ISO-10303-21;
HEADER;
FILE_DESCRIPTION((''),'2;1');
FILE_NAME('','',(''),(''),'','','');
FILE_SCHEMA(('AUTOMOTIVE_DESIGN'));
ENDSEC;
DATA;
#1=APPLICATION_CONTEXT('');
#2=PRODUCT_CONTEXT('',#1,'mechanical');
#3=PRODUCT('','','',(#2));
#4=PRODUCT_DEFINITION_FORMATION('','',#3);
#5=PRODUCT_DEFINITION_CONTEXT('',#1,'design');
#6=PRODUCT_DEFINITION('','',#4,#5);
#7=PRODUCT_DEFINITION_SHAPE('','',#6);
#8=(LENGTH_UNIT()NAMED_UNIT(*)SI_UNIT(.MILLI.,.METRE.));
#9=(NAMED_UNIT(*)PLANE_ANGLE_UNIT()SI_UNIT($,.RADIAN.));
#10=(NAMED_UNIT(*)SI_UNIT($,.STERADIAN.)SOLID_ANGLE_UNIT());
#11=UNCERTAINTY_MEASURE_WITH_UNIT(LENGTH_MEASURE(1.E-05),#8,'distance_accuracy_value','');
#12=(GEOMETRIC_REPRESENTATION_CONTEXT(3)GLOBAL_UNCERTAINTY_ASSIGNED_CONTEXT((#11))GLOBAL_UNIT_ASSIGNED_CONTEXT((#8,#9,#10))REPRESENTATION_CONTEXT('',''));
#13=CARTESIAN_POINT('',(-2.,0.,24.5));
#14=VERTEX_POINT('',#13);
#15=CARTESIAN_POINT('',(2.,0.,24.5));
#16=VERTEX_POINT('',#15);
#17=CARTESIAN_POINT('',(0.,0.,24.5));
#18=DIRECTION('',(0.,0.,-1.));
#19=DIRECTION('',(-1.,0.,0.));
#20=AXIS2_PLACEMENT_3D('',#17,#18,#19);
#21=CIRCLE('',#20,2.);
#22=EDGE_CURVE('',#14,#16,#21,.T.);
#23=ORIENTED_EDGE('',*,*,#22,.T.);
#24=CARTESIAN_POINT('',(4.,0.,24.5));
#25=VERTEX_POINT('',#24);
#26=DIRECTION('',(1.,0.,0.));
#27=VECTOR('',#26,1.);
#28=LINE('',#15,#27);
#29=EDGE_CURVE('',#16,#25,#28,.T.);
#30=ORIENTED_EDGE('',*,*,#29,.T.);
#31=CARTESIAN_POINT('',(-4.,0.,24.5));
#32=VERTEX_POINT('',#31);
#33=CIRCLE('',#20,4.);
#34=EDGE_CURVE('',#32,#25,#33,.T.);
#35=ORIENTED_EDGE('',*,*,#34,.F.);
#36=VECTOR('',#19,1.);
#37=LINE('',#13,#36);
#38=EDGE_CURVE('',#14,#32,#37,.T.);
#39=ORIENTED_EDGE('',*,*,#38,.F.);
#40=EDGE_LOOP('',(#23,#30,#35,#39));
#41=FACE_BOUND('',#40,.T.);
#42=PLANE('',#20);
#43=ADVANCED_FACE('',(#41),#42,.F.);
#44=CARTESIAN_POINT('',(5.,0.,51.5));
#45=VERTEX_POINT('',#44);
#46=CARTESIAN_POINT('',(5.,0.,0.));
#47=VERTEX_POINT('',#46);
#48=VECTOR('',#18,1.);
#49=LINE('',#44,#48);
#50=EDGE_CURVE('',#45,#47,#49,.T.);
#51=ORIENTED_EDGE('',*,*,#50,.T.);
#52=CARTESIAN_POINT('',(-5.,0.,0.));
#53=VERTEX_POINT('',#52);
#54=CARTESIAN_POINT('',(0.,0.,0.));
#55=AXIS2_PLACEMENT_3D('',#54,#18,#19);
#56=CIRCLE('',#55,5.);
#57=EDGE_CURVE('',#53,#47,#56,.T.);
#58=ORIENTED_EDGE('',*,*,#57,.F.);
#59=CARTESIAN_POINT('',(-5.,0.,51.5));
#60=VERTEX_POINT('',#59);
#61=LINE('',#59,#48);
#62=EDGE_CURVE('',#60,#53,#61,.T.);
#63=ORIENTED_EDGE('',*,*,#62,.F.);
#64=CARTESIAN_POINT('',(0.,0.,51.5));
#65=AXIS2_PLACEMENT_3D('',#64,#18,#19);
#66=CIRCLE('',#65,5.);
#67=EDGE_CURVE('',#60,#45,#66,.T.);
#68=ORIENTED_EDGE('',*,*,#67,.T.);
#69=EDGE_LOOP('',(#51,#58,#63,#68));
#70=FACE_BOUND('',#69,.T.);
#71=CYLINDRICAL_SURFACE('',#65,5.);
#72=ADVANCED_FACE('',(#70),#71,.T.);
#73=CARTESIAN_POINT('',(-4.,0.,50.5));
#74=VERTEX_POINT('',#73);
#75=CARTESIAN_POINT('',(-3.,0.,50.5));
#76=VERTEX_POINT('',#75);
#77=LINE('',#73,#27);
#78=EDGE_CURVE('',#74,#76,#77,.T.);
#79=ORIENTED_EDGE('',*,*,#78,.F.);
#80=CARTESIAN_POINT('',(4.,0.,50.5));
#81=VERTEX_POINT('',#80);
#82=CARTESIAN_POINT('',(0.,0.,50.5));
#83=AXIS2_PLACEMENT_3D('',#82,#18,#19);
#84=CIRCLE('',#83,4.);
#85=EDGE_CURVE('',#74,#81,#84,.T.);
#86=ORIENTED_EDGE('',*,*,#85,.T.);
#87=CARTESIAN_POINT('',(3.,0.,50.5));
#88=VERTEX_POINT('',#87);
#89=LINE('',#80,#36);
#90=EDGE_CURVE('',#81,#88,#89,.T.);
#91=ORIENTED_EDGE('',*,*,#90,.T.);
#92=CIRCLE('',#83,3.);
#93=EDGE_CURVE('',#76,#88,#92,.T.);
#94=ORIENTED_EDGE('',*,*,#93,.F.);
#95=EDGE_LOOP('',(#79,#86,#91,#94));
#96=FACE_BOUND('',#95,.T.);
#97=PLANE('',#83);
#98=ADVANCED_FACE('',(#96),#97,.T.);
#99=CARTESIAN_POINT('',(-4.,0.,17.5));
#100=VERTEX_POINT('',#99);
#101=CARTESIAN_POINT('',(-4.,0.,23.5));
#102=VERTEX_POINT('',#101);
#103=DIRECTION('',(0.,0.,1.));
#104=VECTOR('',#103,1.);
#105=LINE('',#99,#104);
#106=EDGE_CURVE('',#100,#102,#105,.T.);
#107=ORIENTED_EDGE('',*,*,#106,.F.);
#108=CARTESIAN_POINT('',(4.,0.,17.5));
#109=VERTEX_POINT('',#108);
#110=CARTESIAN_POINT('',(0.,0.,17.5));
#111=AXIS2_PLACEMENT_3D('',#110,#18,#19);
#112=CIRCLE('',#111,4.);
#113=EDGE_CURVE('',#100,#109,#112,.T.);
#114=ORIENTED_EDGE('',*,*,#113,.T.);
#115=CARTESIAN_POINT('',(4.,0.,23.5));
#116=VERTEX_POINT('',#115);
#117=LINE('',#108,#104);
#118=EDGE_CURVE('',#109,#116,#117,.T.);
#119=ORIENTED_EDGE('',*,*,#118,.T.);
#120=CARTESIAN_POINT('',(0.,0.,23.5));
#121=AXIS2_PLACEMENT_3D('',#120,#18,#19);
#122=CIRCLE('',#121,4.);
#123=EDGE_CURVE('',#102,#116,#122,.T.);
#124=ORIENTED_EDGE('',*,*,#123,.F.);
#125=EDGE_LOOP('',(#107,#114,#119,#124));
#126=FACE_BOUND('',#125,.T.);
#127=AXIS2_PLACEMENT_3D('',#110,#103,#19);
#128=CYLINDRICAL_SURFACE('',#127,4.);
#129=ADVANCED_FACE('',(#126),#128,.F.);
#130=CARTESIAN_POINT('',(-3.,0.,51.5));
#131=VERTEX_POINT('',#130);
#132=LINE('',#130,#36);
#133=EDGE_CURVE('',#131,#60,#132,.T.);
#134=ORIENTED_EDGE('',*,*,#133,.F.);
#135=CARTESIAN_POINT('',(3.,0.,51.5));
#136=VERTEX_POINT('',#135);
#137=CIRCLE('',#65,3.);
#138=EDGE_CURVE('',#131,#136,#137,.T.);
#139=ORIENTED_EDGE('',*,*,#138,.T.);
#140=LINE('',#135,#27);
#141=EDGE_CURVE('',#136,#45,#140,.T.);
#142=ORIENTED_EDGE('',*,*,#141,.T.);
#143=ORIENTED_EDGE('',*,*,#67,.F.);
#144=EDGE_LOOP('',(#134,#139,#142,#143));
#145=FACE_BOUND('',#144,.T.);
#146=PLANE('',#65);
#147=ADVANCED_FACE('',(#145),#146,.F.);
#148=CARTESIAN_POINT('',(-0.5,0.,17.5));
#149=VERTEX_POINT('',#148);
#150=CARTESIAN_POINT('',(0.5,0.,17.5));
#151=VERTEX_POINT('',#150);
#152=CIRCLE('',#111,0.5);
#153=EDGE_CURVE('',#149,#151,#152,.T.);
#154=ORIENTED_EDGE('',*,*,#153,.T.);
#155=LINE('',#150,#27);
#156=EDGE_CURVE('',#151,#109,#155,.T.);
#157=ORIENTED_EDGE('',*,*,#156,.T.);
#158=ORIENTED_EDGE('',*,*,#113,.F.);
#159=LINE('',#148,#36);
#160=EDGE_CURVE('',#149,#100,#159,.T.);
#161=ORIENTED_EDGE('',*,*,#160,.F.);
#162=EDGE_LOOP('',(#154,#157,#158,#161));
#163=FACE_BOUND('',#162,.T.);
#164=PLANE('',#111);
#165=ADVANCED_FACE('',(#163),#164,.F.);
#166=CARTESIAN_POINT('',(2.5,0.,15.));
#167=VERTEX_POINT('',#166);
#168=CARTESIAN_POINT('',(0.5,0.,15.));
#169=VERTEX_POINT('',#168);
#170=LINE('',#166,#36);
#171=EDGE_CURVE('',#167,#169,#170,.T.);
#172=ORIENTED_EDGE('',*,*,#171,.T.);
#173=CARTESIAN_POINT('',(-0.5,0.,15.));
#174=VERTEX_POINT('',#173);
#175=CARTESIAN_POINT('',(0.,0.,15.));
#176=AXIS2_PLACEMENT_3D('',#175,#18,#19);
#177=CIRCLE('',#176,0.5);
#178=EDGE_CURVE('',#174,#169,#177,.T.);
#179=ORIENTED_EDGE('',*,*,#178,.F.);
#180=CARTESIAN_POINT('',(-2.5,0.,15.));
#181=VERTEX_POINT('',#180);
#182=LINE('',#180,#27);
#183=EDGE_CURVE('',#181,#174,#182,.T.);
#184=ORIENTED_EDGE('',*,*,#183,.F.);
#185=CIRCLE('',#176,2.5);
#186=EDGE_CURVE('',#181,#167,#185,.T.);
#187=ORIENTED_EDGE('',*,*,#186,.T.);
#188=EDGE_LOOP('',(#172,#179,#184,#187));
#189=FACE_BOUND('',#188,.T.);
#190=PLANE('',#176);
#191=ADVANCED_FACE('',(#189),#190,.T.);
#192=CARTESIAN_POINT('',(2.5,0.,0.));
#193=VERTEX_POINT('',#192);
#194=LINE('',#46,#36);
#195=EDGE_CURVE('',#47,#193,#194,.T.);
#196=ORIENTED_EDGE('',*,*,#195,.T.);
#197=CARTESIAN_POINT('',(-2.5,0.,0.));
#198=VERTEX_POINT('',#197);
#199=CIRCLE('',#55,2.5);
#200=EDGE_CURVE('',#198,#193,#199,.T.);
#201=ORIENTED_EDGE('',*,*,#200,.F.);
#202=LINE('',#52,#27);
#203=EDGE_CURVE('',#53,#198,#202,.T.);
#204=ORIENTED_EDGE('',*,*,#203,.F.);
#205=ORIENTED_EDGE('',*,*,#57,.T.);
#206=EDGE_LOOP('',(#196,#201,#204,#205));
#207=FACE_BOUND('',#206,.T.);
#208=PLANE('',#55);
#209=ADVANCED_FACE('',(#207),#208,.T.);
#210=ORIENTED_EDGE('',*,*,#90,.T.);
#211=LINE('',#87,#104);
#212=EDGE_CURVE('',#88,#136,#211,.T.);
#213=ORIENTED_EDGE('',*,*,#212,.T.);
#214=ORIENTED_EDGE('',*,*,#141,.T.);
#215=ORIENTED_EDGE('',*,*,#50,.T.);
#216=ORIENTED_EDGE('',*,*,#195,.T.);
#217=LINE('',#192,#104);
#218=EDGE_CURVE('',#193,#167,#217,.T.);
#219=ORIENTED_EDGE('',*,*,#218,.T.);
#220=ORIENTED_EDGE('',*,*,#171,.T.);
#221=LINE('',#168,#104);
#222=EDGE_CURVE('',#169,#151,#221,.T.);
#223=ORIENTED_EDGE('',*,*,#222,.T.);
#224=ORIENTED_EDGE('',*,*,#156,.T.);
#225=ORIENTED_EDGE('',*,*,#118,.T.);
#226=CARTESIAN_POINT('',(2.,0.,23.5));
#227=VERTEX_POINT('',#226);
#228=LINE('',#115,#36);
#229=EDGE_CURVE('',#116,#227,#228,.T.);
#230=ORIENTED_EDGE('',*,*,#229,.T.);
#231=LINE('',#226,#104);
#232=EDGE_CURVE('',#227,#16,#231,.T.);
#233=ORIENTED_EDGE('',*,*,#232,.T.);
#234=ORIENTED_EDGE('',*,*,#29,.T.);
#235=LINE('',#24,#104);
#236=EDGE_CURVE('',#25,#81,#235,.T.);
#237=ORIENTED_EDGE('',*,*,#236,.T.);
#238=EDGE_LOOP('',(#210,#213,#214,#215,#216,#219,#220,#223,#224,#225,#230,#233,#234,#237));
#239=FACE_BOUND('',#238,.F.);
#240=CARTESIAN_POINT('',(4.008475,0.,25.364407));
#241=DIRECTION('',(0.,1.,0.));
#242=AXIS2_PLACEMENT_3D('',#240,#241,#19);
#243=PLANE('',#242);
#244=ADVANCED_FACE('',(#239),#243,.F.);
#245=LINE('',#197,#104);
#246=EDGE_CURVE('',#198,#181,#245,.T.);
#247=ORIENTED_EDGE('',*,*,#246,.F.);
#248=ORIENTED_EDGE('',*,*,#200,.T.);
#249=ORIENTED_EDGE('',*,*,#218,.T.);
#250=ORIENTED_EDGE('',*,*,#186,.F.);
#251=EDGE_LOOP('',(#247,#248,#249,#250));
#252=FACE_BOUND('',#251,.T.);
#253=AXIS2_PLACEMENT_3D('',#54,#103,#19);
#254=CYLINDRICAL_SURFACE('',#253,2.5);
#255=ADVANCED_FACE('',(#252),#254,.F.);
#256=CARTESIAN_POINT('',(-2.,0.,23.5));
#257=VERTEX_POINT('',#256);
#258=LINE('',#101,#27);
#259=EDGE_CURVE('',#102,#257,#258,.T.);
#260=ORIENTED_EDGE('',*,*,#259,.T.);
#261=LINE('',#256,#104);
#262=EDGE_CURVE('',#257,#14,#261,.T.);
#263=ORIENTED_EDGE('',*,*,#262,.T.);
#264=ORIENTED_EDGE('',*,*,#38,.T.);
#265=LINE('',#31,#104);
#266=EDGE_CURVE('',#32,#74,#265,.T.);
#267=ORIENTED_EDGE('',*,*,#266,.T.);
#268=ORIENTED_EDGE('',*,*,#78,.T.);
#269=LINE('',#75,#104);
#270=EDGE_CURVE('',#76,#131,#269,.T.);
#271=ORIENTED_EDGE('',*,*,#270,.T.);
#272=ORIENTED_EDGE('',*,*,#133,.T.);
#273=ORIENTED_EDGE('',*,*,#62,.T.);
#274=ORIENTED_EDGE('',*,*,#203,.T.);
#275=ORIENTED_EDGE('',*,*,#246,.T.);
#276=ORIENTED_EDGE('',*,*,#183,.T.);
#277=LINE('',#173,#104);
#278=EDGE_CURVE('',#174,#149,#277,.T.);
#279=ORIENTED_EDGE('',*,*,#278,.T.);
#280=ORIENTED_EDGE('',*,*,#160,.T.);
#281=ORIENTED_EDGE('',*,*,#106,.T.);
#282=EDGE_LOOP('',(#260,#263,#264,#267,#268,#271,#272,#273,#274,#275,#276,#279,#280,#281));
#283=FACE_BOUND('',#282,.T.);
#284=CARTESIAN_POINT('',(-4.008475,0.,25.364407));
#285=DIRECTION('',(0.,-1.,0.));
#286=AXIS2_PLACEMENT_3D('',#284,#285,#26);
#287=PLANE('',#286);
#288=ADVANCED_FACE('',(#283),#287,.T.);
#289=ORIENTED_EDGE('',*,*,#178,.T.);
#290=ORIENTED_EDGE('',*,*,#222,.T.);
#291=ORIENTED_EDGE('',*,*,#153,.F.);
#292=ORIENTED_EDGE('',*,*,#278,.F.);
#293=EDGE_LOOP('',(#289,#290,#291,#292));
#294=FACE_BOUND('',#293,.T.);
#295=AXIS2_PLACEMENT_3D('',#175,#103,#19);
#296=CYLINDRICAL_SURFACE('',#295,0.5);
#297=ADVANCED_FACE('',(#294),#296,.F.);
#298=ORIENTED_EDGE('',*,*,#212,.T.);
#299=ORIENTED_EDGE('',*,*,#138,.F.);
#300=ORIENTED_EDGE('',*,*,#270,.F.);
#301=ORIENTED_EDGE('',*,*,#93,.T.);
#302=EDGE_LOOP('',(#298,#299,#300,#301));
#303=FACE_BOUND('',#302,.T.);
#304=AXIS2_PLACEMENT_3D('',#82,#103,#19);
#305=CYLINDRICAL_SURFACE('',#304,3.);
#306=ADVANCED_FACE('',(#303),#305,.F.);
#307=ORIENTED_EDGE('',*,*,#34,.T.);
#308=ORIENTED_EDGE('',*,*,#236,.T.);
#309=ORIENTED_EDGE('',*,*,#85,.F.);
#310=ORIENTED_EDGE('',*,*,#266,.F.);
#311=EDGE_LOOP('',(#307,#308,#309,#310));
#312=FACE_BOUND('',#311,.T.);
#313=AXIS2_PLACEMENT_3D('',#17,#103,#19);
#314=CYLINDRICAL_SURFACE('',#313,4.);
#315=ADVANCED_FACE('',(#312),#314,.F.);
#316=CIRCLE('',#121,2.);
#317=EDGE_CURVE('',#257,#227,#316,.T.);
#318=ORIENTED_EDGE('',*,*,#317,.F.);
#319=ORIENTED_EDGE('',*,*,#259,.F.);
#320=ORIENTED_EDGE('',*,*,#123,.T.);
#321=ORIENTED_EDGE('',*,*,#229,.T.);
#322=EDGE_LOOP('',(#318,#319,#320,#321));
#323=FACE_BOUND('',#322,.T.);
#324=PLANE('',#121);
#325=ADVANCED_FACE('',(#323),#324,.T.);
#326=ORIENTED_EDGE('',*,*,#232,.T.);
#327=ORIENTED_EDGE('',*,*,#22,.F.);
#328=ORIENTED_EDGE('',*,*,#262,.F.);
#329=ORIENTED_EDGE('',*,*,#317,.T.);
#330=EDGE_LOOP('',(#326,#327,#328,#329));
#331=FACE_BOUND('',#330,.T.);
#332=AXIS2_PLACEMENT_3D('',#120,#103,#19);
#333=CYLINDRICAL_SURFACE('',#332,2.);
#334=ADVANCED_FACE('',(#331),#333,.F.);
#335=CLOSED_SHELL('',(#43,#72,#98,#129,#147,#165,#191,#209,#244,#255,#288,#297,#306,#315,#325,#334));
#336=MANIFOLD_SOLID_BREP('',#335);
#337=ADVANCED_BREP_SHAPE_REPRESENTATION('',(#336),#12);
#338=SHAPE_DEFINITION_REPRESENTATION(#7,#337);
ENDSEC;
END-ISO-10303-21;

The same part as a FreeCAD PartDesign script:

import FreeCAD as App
import Part
import Sketcher

V = App.Vector


def add_polygon(sketch, points):
    """Adds a closed chain of lines whose ends are joined by coincident constraints."""
    first, n = sketch.GeometryCount, len(points)
    for a, b in zip(points, points[1:] + points[:1]):
        sketch.addGeometry(Part.LineSegment(App.Vector(*a, 0), App.Vector(*b, 0)), False)
    for i in range(n):
        sketch.addConstraint(Sketcher.Constraint("Coincident", first + i, 2, first + (i + 1) % n, 1))

doc = App.newDocument("Part")
body = doc.addObject("PartDesign::Body", "Body")

# Sketch on XZ plane
sketch1 = body.newObject("Sketcher::SketchObject", "Sketch")
sketch1.AttachmentSupport = (doc.getObject("XZ_Plane"), [""])
sketch1.MapMode = "FlatFace"
add_polygon(sketch1, [(-4, 50.5), (-3, 50.5), (-3, 51.5), (-5, 51.5), (-5, 0), (-2.5, 0), (-2.5, 15), (-0.5, 15), (-0.5, 17.5), (-4, 17.5), (-4, 23.5), (-2, 23.5), (-2, 24.5), (-4, 24.5)])  # lines 0-13
sketch1.addConstraint([
    Sketcher.Constraint("Horizontal", 0),
    Sketcher.Constraint("Vertical", 1),
    Sketcher.Constraint("Horizontal", 2),
    Sketcher.Constraint("Vertical", 3),
    Sketcher.Constraint("Horizontal", 4),
    Sketcher.Constraint("Vertical", 5),
    Sketcher.Constraint("Horizontal", 6),
    Sketcher.Constraint("Vertical", 7),
    Sketcher.Constraint("Horizontal", 8),
    Sketcher.Constraint("Vertical", 9),
    Sketcher.Constraint("Horizontal", 10),
    Sketcher.Constraint("Vertical", 11),
    Sketcher.Constraint("Horizontal", 12),
    Sketcher.Constraint("Vertical", 13),
    Sketcher.Constraint("PointOnObject", 3, 2, -1),
    Sketcher.Constraint("Vertical", 9, 2, 12, 2),
    Sketcher.Constraint("Equal", 2, 6),
    Sketcher.Constraint("Equal", 6, 10),
    Sketcher.Constraint("Equal", 0, 1),
    Sketcher.Constraint("Equal", 4, 7),
    Sketcher.Constraint("Equal", 1, 11),
    Sketcher.Constraint("DistanceX", 0, 1, 0, 2, 1.0),
    Sketcher.Constraint("DistanceX", 2, 2, 2, 1, 2.0),
    Sketcher.Constraint("DistanceY", 5, 1, 5, 2, 15.0),
    Sketcher.Constraint("DistanceY", 9, 1, 9, 2, 6.0),
    Sketcher.Constraint("DistanceY", 13, 1, 13, 2, 26.0),
    Sketcher.Constraint("DistanceX", 4, 1, 4, 2, 2.5),
    Sketcher.Constraint("DistanceX", 0, 2, -1, 1, 3.0),
])
revolution = body.newObject("PartDesign::Revolution", "Revolution")
revolution.Profile = sketch1
revolution.ReferenceAxis = (sketch1, ["V_Axis"])
revolution.Angle = 180
revolution.Reversed = True

doc.recompute()
